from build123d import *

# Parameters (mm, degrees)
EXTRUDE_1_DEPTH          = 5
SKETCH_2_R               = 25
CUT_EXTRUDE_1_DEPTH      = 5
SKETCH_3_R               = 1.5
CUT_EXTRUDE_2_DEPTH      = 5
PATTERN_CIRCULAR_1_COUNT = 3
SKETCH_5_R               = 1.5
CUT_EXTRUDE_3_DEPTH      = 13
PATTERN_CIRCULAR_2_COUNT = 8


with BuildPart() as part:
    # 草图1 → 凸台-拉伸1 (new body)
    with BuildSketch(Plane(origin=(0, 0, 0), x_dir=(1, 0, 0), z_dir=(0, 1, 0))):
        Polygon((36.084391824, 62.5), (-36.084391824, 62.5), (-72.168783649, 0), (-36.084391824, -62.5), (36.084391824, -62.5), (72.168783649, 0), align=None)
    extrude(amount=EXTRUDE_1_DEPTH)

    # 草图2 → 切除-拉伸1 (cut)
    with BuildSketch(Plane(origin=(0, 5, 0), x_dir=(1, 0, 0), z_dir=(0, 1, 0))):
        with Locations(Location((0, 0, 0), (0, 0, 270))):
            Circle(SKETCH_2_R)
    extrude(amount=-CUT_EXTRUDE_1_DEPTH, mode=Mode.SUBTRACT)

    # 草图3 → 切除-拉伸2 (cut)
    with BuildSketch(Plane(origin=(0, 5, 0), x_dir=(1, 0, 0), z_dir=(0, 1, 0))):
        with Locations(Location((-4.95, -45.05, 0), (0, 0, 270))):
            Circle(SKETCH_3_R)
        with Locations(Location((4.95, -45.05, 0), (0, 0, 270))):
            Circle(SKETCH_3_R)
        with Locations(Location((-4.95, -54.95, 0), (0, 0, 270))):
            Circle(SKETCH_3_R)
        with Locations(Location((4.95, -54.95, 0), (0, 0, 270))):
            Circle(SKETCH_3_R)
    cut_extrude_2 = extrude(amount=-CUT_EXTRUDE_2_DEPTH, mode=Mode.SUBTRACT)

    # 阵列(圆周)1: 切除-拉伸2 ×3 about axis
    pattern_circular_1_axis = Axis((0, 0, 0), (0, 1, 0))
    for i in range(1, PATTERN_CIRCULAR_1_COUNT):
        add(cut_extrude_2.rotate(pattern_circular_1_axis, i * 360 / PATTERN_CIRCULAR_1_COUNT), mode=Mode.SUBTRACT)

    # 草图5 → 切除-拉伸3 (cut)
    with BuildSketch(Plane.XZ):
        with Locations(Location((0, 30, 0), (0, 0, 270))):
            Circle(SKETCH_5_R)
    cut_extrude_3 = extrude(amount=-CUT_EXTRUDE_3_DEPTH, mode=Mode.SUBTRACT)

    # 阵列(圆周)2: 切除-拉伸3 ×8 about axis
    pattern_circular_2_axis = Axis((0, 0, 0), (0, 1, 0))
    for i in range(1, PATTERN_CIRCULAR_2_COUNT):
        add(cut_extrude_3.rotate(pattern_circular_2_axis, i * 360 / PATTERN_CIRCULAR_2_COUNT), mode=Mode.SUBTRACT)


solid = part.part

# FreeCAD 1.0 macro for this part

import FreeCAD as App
import Part
import Sketcher

V = App.Vector
Q = App.Units.Quantity

doc = App.newDocument("Part")
body = doc.addObject("PartDesign::Body", "Body")

# Sketch on XZ plane
sketch1 = body.newObject("Sketcher::SketchObject", "Sketch")
sketch1.AttachmentSupport = (doc.getObject("XZ_Plane"), [""])
sketch1.MapMode = "FlatFace"
sketch1.addGeometry([
    Part.LineSegment(V(36, -62, 0), V(-36, -62, 0)),  # 0
    Part.LineSegment(V(-36, -62, 0), V(-72, 0, 0)),  # 1
    Part.LineSegment(V(-72, 0, 0), V(-36, 62, 0)),  # 2
    Part.LineSegment(V(-36, 62, 0), V(36, 62, 0)),  # 3
    Part.LineSegment(V(36, 62, 0), V(72, 0, 0)),  # 4
    Part.LineSegment(V(72, 0, 0), V(36, -62, 0)),  # 5
], False)
sketch1.addConstraint([
    Sketcher.Constraint("Coincident", 0, 2, 1, 1),
    Sketcher.Constraint("Coincident", 1, 2, 2, 1),
    Sketcher.Constraint("Coincident", 2, 2, 3, 1),
    Sketcher.Constraint("Coincident", 3, 2, 4, 1),
    Sketcher.Constraint("Coincident", 4, 2, 5, 1),
    Sketcher.Constraint("Coincident", 5, 2, 0, 1),
    Sketcher.Constraint("Horizontal", 0),
    Sketcher.Constraint("Horizontal", 3),
    Sketcher.Constraint("Symmetric", 0, 2, 3, 2, -1, 1),
    Sketcher.Constraint("Symmetric", 1, 2, 4, 2, -1, 1),
    Sketcher.Constraint("PointOnObject", 1, 2, -1),
    Sketcher.Constraint("Parallel", 2, 5),
    Sketcher.Constraint("Vertical", 0, 2, 2, 2),
    Sketcher.Constraint("Angle", 1, Q("120 deg")),
    Sketcher.Constraint("DistanceY", 0, 2, 2, 2, Q("125 mm")),
    Sketcher.Constraint("DistanceX", 0, 2, 0, 1, Q("72.168784 mm")),
])
pad1 = body.newObject("PartDesign::Pad", "Pad")
pad1.Profile = sketch1
pad1.Length = 5
pad1.Reversed = True

# Sketch on XZ plane
sketch2 = body.newObject("Sketcher::SketchObject", "Sketch001")
sketch2.AttachmentSupport = (doc.getObject("XZ_Plane"), [""])
sketch2.MapMode = "FlatFace"
sketch2.AttachmentOffset = App.Placement(V(0, 0, -5), App.Rotation())
sketch2.addGeometry(Part.Circle(V(0, 0, 0), V(0, 0, 1), 25), False)
sketch2.addConstraint([
    Sketcher.Constraint("Coincident", 0, 3, -1, 1),
    Sketcher.Constraint("Diameter", 0, Q("50 mm")),
])
pocket1 = body.newObject("PartDesign::Pocket", "Pocket")
pocket1.Profile = sketch2
pocket1.Length = 5
pocket1.Reversed = True

# Sketch on XZ plane
sketch3 = body.newObject("Sketcher::SketchObject", "Sketch002")
sketch3.AttachmentSupport = (doc.getObject("XZ_Plane"), [""])
sketch3.MapMode = "FlatFace"
sketch3.AttachmentOffset = App.Placement(V(0, 0, -5), App.Rotation())
sketch3.addGeometry([
    Part.Circle(V(-5, 45, 0), V(0, 0, 1), 1.5),
    Part.Circle(V(5, 45, 0), V(0, 0, 1), 1.5),
    Part.Circle(V(-5, 55, 0), V(0, 0, 1), 1.5),
    Part.Circle(V(5, 55, 0), V(0, 0, 1), 1.5),
], False)
sketch3.addConstraint([
    Sketcher.Constraint("Equal", 0, 1),
    Sketcher.Constraint("Equal", 1, 2),
    Sketcher.Constraint("Equal", 2, 3),
    Sketcher.Constraint("Symmetric", 0, 3, 1, 3, -2),
    Sketcher.Constraint("Symmetric", 2, 3, 3, 3, -2),
    Sketcher.Constraint("Vertical", 0, 3, 2, 3),
    Sketcher.Constraint("Diameter", 0, Q("3 mm")),
    Sketcher.Constraint("DistanceX", 0, 3, 1, 3, Q("9.9 mm")),
    Sketcher.Constraint("DistanceY", 0, 3, 2, 3, Q("9.9 mm")),
    Sketcher.Constraint("DistanceY", -1, 1, 0, 3, Q("45.05 mm")),
])
pocket2 = body.newObject("PartDesign::Pocket", "Pocket001")
pocket2.Profile = sketch3
pocket2.Length = 5
pocket2.Reversed = True
doc.recompute()

polarpattern = body.newObject("PartDesign::PolarPattern", "PolarPattern")
polarpattern.Originals = [pocket2]
polarpattern.Axis = (doc.getObject("Y_Axis"), [""])
polarpattern.Angle = 360
polarpattern.Occurrences = 3
body.Tip = polarpattern

# Sketch on XZ plane
sketch4 = body.newObject("Sketcher::SketchObject", "Sketch003")
sketch4.AttachmentSupport = (doc.getObject("XZ_Plane"), [""])
sketch4.MapMode = "FlatFace"
sketch4.addGeometry(Part.Circle(V(0, 30, 0), V(0, 0, 1), 1.5), False)
sketch4.addConstraint([
    Sketcher.Constraint("PointOnObject", 0, 3, -2),
    Sketcher.Constraint("Diameter", 0, Q("3 mm")),
    Sketcher.Constraint("DistanceY", -1, 1, 0, 3, Q("30 mm")),
])
pocket3 = body.newObject("PartDesign::Pocket", "Pocket002")
pocket3.Profile = sketch4
pocket3.Length = 13
doc.recompute()

polarpattern2 = body.newObject("PartDesign::PolarPattern", "PolarPattern001")
polarpattern2.Originals = [pocket3]
polarpattern2.Axis = (doc.getObject("Y_Axis"), [""])
polarpattern2.Angle = 360
polarpattern2.Occurrences = 8
body.Tip = polarpattern2

doc.recompute()
